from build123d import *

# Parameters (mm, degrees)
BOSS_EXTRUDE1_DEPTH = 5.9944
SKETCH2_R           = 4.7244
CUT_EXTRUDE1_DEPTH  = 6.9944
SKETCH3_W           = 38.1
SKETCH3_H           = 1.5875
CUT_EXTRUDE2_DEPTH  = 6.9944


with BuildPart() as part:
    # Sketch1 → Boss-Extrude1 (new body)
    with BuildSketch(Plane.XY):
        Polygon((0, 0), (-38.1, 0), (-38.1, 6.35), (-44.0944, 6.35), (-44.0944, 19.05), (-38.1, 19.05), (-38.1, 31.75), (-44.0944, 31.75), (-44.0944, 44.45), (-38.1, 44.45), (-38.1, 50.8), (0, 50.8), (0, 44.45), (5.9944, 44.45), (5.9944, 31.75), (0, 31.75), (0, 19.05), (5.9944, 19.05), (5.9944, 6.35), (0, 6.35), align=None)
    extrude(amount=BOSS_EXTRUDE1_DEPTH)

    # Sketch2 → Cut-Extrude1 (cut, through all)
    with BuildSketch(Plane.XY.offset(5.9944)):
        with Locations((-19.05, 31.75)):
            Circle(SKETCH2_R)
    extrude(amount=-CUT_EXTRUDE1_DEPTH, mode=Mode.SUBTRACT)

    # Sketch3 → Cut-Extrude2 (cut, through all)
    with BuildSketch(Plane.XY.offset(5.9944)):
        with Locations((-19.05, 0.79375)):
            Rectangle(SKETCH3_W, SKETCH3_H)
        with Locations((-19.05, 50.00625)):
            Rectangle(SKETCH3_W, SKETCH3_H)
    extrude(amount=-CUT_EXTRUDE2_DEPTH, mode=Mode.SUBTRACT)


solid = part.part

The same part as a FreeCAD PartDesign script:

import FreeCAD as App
import Part
import Sketcher

V = App.Vector
Q = App.Units.Quantity

doc = App.newDocument("Part")
body = doc.addObject("PartDesign::Body", "Body")

sketch1 = body.newObject("Sketcher::SketchObject", "Sketch")
sketch1.AttachmentSupport = (doc.getObject("XY_Plane"), [""])
sketch1.MapMode = "FlatFace"
sketch1.addGeometry(Part.LineSegment(V(-38.1, 0, 0), V(0, 0, 0)), False)
sketch1.addGeometry(Part.LineSegment(V(0, 0, 0), V(0, 6.35, 0)), False)
sketch1.addGeometry(Part.LineSegment(V(0, 6.35, 0), V(5.9944, 6.35, 0)), False)
sketch1.addGeometry(Part.LineSegment(V(5.9944, 6.35, 0), V(5.9944, 19.05, 0)), False)
sketch1.addGeometry(Part.LineSegment(V(5.9944, 19.05, 0), V(0, 19.05, 0)), False)
sketch1.addGeometry(Part.LineSegment(V(0, 19.05, 0), V(0, 31.75, 0)), False)
sketch1.addGeometry(Part.LineSegment(V(0, 31.75, 0), V(5.9944, 31.75, 0)), False)
sketch1.addGeometry(Part.LineSegment(V(5.9944, 31.75, 0), V(5.9944, 44.45, 0)), False)
sketch1.addGeometry(Part.LineSegment(V(5.9944, 44.45, 0), V(0, 44.45, 0)), False)
sketch1.addGeometry(Part.LineSegment(V(0, 44.45, 0), V(0, 50.8, 0)), False)
sketch1.addGeometry(Part.LineSegment(V(0, 50.8, 0), V(-38.1, 50.8, 0)), False)
sketch1.addGeometry(Part.LineSegment(V(-38.1, 50.8, 0), V(-38.1, 44.45, 0)), False)
sketch1.addGeometry(Part.LineSegment(V(-38.1, 44.45, 0), V(-44.0944, 44.45, 0)), False)
sketch1.addGeometry(Part.LineSegment(V(-44.0944, 44.45, 0), V(-44.0944, 31.75, 0)), False)
sketch1.addGeometry(Part.LineSegment(V(-44.0944, 31.75, 0), V(-38.1, 31.75, 0)), False)
sketch1.addGeometry(Part.LineSegment(V(-38.1, 31.75, 0), V(-38.1, 19.05, 0)), False)
sketch1.addGeometry(Part.LineSegment(V(-38.1, 19.05, 0), V(-44.0944, 19.05, 0)), False)
sketch1.addGeometry(Part.LineSegment(V(-44.0944, 19.05, 0), V(-44.0944, 6.35, 0)), False)
sketch1.addGeometry(Part.LineSegment(V(-44.0944, 6.35, 0), V(-38.1, 6.35, 0)), False)
sketch1.addGeometry(Part.LineSegment(V(-38.1, 6.35, 0), V(-38.1, 0, 0)), False)
sketch1.addConstraint(Sketcher.Constraint("Coincident", 0, 2, 1, 1))
sketch1.addConstraint(Sketcher.Constraint("Coincident", 1, 2, 2, 1))
sketch1.addConstraint(Sketcher.Constraint("Coincident", 2, 2, 3, 1))
sketch1.addConstraint(Sketcher.Constraint("Coincident", 3, 2, 4, 1))
sketch1.addConstraint(Sketcher.Constraint("Coincident", 4, 2, 5, 1))
sketch1.addConstraint(Sketcher.Constraint("Coincident", 5, 2, 6, 1))
sketch1.addConstraint(Sketcher.Constraint("Coincident", 6, 2, 7, 1))
sketch1.addConstraint(Sketcher.Constraint("Coincident", 7, 2, 8, 1))
sketch1.addConstraint(Sketcher.Constraint("Coincident", 8, 2, 9, 1))
sketch1.addConstraint(Sketcher.Constraint("Coincident", 9, 2, 10, 1))
sketch1.addConstraint(Sketcher.Constraint("Coincident", 10, 2, 11, 1))
sketch1.addConstraint(Sketcher.Constraint("Coincident", 11, 2, 12, 1))
sketch1.addConstraint(Sketcher.Constraint("Coincident", 12, 2, 13, 1))
sketch1.addConstraint(Sketcher.Constraint("Coincident", 13, 2, 14, 1))
sketch1.addConstraint(Sketcher.Constraint("Coincident", 14, 2, 15, 1))
sketch1.addConstraint(Sketcher.Constraint("Coincident", 15, 2, 16, 1))
sketch1.addConstraint(Sketcher.Constraint("Coincident", 16, 2, 17, 1))
sketch1.addConstraint(Sketcher.Constraint("Coincident", 17, 2, 18, 1))
sketch1.addConstraint(Sketcher.Constraint("Coincident", 18, 2, 19, 1))
sketch1.addConstraint(Sketcher.Constraint("Coincident", 19, 2, 0, 1))
sketch1.addConstraint(Sketcher.Constraint("Horizontal", 0))
sketch1.addConstraint(Sketcher.Constraint("Vertical", 1))
sketch1.addConstraint(Sketcher.Constraint("Horizontal", 2))
sketch1.addConstraint(Sketcher.Constraint("Vertical", 3))
sketch1.addConstraint(Sketcher.Constraint("Horizontal", 4))
sketch1.addConstraint(Sketcher.Constraint("Vertical", 5))
sketch1.addConstraint(Sketcher.Constraint("Horizontal", 6))
sketch1.addConstraint(Sketcher.Constraint("Vertical", 7))
sketch1.addConstraint(Sketcher.Constraint("Horizontal", 8))
sketch1.addConstraint(Sketcher.Constraint("Vertical", 9))
sketch1.addConstraint(Sketcher.Constraint("Horizontal", 10))
sketch1.addConstraint(Sketcher.Constraint("Vertical", 11))
sketch1.addConstraint(Sketcher.Constraint("Horizontal", 12))
sketch1.addConstraint(Sketcher.Constraint("Vertical", 13))
sketch1.addConstraint(Sketcher.Constraint("Horizontal", 14))
sketch1.addConstraint(Sketcher.Constraint("Vertical", 15))
sketch1.addConstraint(Sketcher.Constraint("Horizontal", 16))
sketch1.addConstraint(Sketcher.Constraint("Vertical", 17))
sketch1.addConstraint(Sketcher.Constraint("Horizontal", 18))
sketch1.addConstraint(Sketcher.Constraint("Vertical", 19))
sketch1.addConstraint(Sketcher.Constraint("Coincident", 0, 2, -1, 1))
sketch1.addConstraint(Sketcher.Constraint("PointOnObject", 4, 2, -2))
sketch1.addConstraint(Sketcher.Constraint("PointOnObject", 8, 2, -2))
sketch1.addConstraint(Sketcher.Constraint("Horizontal", 8, 2, 11, 2))
sketch1.addConstraint(Sketcher.Constraint("Horizontal", 6, 2, 13, 2))
sketch1.addConstraint(Sketcher.Constraint("Horizontal", 4, 2, 15, 2))
sketch1.addConstraint(Sketcher.Constraint("Horizontal", 2, 2, 17, 2))
sketch1.addConstraint(Sketcher.Constraint("Vertical", 3, 2, 6, 2))
sketch1.addConstraint(Sketcher.Constraint("Vertical", 11, 2, 14, 2))
sketch1.addConstraint(Sketcher.Constraint("Vertical", 13, 2, 16, 2))
sketch1.addConstraint(Sketcher.Constraint("Vertical", 15, 2, 18, 2))
sketch1.addConstraint(Sketcher.Constraint("Equal", 8, 12))
sketch1.addConstraint(Sketcher.Constraint("Equal", 3, 5))
sketch1.addConstraint(Sketcher.Constraint("Equal", 5, 7))
sketch1.addConstraint(Sketcher.Constraint("Equal", 1, 9))
sketch1.addConstraint(Sketcher.Constraint("DistanceX", 0, 1, 0, 2, Q("1.5 in")))
sketch1.addConstraint(Sketcher.Constraint("DistanceY", 3, 1, 3, 2, Q("0.5 in")))
sketch1.addConstraint(Sketcher.Constraint("DistanceY", -1, 1, 9, 2, Q("2 in")))
sketch1.addConstraint(Sketcher.Constraint("DistanceX", 2, 1, 2, 2, Q("0.236 in")))
pad1 = body.newObject("PartDesign::Pad", "Pad")
pad1.Profile = sketch1
pad1.Length = Q("0.236 in")

sketch2 = body.newObject("Sketcher::SketchObject", "Sketch001")
sketch2.AttachmentSupport = (doc.getObject("XY_Plane"), [""])
sketch2.MapMode = "FlatFace"
sketch2.AttachmentOffset = App.Placement(V(0, 0, 0.236 * 25.4), App.Rotation())
sketch2.addGeometry(Part.Circle(V(-19.05, 31.75, 0), V(0, 0, 1), 4.7244), False)
sketch2.addConstraint(Sketcher.Constraint("Diameter", 0, Q("0.372 in")))
sketch2.addConstraint(Sketcher.Constraint("DistanceX", 0, 3, -1, 1, Q("0.75 in")))
sketch2.addConstraint(Sketcher.Constraint("DistanceY", -1, 1, 0, 3, Q("1.25 in")))
pocket1 = body.newObject("PartDesign::Pocket", "Pocket")
pocket1.Profile = sketch2
pocket1.Type = "ThroughAll"

sketch3 = body.newObject("Sketcher::SketchObject", "Sketch002")
sketch3.AttachmentSupport = (doc.getObject("XY_Plane"), [""])
sketch3.MapMode = "FlatFace"
sketch3.AttachmentOffset = App.Placement(V(0, 0, 0.236 * 25.4), App.Rotation())
sketch3.addGeometry(Part.LineSegment(V(-38.1, 1.5875, 0), V(-38.1, 0, 0)), False)
sketch3.addGeometry(Part.LineSegment(V(-38.1, 0, 0), V(0, 0, 0)), False)
sketch3.addGeometry(Part.LineSegment(V(0, 0, 0), V(0, 1.5875, 0)), False)
sketch3.addGeometry(Part.LineSegment(V(0, 1.5875, 0), V(-38.1, 1.5875, 0)), False)
sketch3.addGeometry(Part.LineSegment(V(-38.1, 50.8, 0), V(-38.1, 49.2125, 0)), False)
sketch3.addGeometry(Part.LineSegment(V(-38.1, 49.2125, 0), V(0, 49.2125, 0)), False)
sketch3.addGeometry(Part.LineSegment(V(0, 49.2125, 0), V(0, 50.8, 0)), False)
sketch3.addGeometry(Part.LineSegment(V(0, 50.8, 0), V(-38.1, 50.8, 0)), False)
sketch3.addConstraint(Sketcher.Constraint("Coincident", 0, 2, 1, 1))
sketch3.addConstraint(Sketcher.Constraint("Coincident", 1, 2, 2, 1))
sketch3.addConstraint(Sketcher.Constraint("Coincident", 2, 2, 3, 1))
sketch3.addConstraint(Sketcher.Constraint("Coincident", 3, 2, 0, 1))
sketch3.addConstraint(Sketcher.Constraint("Coincident", 4, 2, 5, 1))
sketch3.addConstraint(Sketcher.Constraint("Coincident", 5, 2, 6, 1))
sketch3.addConstraint(Sketcher.Constraint("Coincident", 6, 2, 7, 1))
sketch3.addConstraint(Sketcher.Constraint("Coincident", 7, 2, 4, 1))
sketch3.addConstraint(Sketcher.Constraint("Vertical", 0))
sketch3.addConstraint(Sketcher.Constraint("Horizontal", 1))
sketch3.addConstraint(Sketcher.Constraint("Vertical", 2))
sketch3.addConstraint(Sketcher.Constraint("Horizontal", 3))
sketch3.addConstraint(Sketcher.Constraint("Vertical", 4))
sketch3.addConstraint(Sketcher.Constraint("Horizontal", 5))
sketch3.addConstraint(Sketcher.Constraint("Vertical", 6))
sketch3.addConstraint(Sketcher.Constraint("Horizontal", 7))
sketch3.addConstraint(Sketcher.Constraint("Coincident", 1, 2, -1, 1))
sketch3.addConstraint(Sketcher.Constraint("PointOnObject", 5, 2, -2))
sketch3.addConstraint(Sketcher.Constraint("Vertical", 3, 2, 4, 2))
sketch3.addConstraint(Sketcher.Constraint("Equal", 2, 4))
sketch3.addConstraint(Sketcher.Constraint("DistanceX", 1, 1, 1, 2, Q("1.5 in")))
sketch3.addConstraint(Sketcher.Constraint("DistanceY", -1, 1, 6, 2, Q("2 in")))
sketch3.addConstraint(Sketcher.Constraint("DistanceY", 0, 2, 0, 1, Q("0.0625 in")))
pocket2 = body.newObject("PartDesign::Pocket", "Pocket001")
pocket2.Profile = sketch3
pocket2.Type = "ThroughAll"

doc.recompute()
